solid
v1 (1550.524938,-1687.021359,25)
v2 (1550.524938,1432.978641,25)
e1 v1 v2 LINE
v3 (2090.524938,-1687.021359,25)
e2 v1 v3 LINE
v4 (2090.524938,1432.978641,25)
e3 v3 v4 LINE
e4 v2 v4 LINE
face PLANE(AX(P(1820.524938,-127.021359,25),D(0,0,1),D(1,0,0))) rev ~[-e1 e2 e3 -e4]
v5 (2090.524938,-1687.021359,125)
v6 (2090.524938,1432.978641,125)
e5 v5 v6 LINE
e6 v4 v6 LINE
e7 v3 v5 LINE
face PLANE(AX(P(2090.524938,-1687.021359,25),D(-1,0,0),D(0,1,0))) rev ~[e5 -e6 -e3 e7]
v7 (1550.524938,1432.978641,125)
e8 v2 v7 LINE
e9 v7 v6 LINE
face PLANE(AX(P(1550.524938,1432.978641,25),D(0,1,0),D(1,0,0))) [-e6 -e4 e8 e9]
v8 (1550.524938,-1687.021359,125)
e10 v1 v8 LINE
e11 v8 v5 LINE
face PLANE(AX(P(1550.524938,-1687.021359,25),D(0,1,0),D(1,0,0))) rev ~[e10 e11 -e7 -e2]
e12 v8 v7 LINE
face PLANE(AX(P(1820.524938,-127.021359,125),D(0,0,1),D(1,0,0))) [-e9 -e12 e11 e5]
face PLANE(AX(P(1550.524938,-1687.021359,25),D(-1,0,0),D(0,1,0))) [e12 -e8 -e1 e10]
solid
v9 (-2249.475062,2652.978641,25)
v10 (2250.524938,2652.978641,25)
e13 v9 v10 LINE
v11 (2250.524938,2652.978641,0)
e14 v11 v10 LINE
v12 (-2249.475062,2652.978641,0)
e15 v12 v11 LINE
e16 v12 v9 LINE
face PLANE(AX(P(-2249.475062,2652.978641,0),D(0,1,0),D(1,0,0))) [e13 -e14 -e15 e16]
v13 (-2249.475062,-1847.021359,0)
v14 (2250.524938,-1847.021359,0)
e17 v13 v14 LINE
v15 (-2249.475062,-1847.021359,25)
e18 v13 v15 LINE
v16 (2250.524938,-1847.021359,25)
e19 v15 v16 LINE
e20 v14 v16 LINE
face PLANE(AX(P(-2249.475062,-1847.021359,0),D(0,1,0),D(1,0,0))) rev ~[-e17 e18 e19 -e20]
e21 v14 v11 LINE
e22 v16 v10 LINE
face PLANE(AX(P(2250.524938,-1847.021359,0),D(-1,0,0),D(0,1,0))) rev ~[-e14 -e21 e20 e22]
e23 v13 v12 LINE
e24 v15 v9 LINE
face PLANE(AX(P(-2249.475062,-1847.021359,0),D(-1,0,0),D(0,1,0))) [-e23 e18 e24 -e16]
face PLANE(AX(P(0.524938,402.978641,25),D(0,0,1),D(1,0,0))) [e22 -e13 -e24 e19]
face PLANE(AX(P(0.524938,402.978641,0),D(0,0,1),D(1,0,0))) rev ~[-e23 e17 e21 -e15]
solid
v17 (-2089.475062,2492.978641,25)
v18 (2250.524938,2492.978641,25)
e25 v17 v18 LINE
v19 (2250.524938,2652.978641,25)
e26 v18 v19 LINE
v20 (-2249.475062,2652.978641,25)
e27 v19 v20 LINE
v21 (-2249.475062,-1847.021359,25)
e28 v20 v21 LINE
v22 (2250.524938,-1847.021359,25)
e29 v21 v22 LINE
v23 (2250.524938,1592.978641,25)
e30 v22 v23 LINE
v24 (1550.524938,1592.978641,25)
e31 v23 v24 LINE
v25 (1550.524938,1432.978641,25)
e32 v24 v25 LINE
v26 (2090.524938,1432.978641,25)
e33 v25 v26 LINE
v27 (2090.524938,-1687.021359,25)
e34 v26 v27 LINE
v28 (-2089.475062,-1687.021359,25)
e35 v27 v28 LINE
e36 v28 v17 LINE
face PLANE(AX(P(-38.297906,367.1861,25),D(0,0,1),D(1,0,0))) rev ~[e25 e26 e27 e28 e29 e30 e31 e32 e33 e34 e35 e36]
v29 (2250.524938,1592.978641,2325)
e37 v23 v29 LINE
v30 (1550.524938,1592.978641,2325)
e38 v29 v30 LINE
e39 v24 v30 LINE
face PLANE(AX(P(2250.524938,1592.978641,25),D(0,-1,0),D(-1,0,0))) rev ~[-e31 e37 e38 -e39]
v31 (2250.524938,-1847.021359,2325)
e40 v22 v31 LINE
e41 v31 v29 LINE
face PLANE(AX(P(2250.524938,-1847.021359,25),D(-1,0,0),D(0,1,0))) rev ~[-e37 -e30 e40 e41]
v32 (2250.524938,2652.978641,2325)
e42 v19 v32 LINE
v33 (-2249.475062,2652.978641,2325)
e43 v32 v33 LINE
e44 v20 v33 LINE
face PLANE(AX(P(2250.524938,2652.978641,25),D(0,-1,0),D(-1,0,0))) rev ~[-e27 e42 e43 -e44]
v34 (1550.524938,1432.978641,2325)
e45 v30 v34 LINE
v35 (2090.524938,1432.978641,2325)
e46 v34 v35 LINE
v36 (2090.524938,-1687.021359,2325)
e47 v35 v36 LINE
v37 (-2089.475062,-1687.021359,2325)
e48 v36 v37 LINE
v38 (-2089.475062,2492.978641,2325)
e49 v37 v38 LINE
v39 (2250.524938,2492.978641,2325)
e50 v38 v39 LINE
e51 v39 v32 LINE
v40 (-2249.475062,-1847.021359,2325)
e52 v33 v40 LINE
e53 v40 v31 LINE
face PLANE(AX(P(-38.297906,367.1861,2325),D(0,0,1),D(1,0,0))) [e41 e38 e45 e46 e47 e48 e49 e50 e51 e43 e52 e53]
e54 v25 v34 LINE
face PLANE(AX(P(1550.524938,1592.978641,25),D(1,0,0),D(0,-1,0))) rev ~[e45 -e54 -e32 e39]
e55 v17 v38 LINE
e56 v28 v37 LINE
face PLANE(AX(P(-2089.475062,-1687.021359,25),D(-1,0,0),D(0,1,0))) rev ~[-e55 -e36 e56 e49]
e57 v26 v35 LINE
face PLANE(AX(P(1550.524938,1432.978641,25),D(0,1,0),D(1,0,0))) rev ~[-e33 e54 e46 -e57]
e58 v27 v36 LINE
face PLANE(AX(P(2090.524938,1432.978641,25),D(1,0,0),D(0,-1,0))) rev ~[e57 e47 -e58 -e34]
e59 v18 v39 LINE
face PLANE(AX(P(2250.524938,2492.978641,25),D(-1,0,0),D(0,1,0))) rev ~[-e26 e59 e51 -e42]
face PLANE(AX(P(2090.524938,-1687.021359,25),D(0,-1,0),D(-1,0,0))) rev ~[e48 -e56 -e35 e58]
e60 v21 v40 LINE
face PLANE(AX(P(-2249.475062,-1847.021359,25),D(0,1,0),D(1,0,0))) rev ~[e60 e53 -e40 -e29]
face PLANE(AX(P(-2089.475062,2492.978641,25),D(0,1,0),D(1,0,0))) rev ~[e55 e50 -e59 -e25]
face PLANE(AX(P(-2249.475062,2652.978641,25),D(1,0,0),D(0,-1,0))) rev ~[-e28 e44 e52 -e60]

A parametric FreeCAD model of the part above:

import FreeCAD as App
import Part
import Sketcher

V = App.Vector


def add_polygon(sketch, points):
    """Adds a closed chain of lines whose ends are joined by coincident constraints."""
    first, n = sketch.GeometryCount, len(points)
    for a, b in zip(points, points[1:] + points[:1]):
        sketch.addGeometry(Part.LineSegment(App.Vector(*a, 0), App.Vector(*b, 0)), False)
    for i in range(n):
        sketch.addConstraint(Sketcher.Constraint("Coincident", first + i, 2, first + (i + 1) % n, 1))

doc = App.newDocument("Part")
body = doc.addObject("PartDesign::Body", "Body")

# Sketch on XY plane
sketch1 = body.newObject("Sketcher::SketchObject", "Sketch")
sketch1.AttachmentSupport = (doc.getObject("XY_Plane"), [""])
sketch1.MapMode = "FlatFace"
add_polygon(sketch1, [(-2249, 2653), (-2249, -1847), (2251, -1847), (2251, 2653)])  # lines 0-3
sketch1.addConstraint(Sketcher.Constraint("Vertical", 0))
sketch1.addConstraint(Sketcher.Constraint("Horizontal", 1))
sketch1.addConstraint(Sketcher.Constraint("Vertical", 2))
sketch1.addConstraint(Sketcher.Constraint("Horizontal", 3))
sketch1.addConstraint(Sketcher.Constraint("Equal", 3, 0))
sketch1.addConstraint(Sketcher.Constraint("DistanceX", 1, 1, 1, 2, 4500.0))
sketch1.addConstraint(Sketcher.Constraint("DistanceX", 0, 2, -1, 1, 2249.475062))
sketch1.addConstraint(Sketcher.Constraint("DistanceY", 0, 2, -1, 1, 1847.021359))
pad1 = body.newObject("PartDesign::Pad", "Pad")
pad1.Profile = sketch1
pad1.Length = 25
body2 = doc.addObject("PartDesign::Body", "Body001")

# Sketch on XY plane
sketch2 = body2.newObject("Sketcher::SketchObject", "Sketch001")
sketch2.AttachmentSupport = (doc.getObject("XY_Plane001"), [""])
sketch2.MapMode = "FlatFace"
sketch2.AttachmentOffset = App.Placement(V(0, 0, 25), App.Rotation())
add_polygon(sketch2, [(2251, 2493), (2251, 2653), (-2249, 2653), (-2249, -1847), (2251, -1847), (2251, 1593), (1551, 1593), (1551, 1433), (2091, 1433), (2091, -1687), (-2089, -1687), (-2089, 2493)])  # lines 0-11
sketch2.addConstraint(Sketcher.Constraint("Vertical", 0))
sketch2.addConstraint(Sketcher.Constraint("Horizontal", 1))
sketch2.addConstraint(Sketcher.Constraint("Vertical", 2))
sketch2.addConstraint(Sketcher.Constraint("Horizontal", 3))
sketch2.addConstraint(Sketcher.Constraint("Vertical", 4))
sketch2.addConstraint(Sketcher.Constraint("Horizontal", 5))
sketch2.addConstraint(Sketcher.Constraint("Vertical", 6))
sketch2.addConstraint(Sketcher.Constraint("Horizontal", 7))
sketch2.addConstraint(Sketcher.Constraint("Vertical", 8))
sketch2.addConstraint(Sketcher.Constraint("Horizontal", 9))
sketch2.addConstraint(Sketcher.Constraint("Vertical", 10))
sketch2.addConstraint(Sketcher.Constraint("Horizontal", 11))
sketch2.addConstraint(Sketcher.Constraint("Vertical", 0, 2, 3, 2))
sketch2.addConstraint(Sketcher.Constraint("Equal", 3, 2))
sketch2.addConstraint(Sketcher.Constraint("Equal", 0, 6))
sketch2.addConstraint(Sketcher.Constraint("Equal", 9, 10))
sketch2.addConstraint(Sketcher.Constraint("DistanceX", 1, 2, 1, 1, 4500.0))
sketch2.addConstraint(Sketcher.Constraint("DistanceX", 5, 2, 5, 1, 700.0))
sketch2.addConstraint(Sketcher.Constraint("DistanceX", 7, 1, 7, 2, 540.0))
sketch2.addConstraint(Sketcher.Constraint("DistanceX", 9, 2, 9, 1, 4180.0))
sketch2.addConstraint(Sketcher.Constraint("DistanceY", 0, 1, 0, 2, 160.0))
sketch2.addConstraint(Sketcher.Constraint("DistanceY", 4, 1, 4, 2, 3440.0))
sketch2.addConstraint(Sketcher.Constraint("DistanceX", -1, 1, 0, 2, 2250.524938))
sketch2.addConstraint(Sketcher.Constraint("DistanceY", -1, 1, 0, 2, 2652.978641))
pad2 = body2.newObject("PartDesign::Pad", "Pad001")
pad2.Profile = sketch2
pad2.Length = 2300
body3 = doc.addObject("PartDesign::Body", "Body002")

# Sketch on XY plane
sketch3 = body3.newObject("Sketcher::SketchObject", "Sketch002")
sketch3.AttachmentSupport = (doc.getObject("XY_Plane002"), [""])
sketch3.MapMode = "FlatFace"
sketch3.AttachmentOffset = App.Placement(V(0, 0, 25), App.Rotation())
add_polygon(sketch3, [(1551, 1433), (1551, -1687), (2091, -1687), (2091, 1433)])  # lines 0-3
sketch3.addConstraint(Sketcher.Constraint("Vertical", 0))
sketch3.addConstraint(Sketcher.Constraint("Horizontal", 1))
sketch3.addConstraint(Sketcher.Constraint("Vertical", 2))
sketch3.addConstraint(Sketcher.Constraint("Horizontal", 3))
sketch3.addConstraint(Sketcher.Constraint("DistanceX", 1, 1, 1, 2, 540.0))
sketch3.addConstraint(Sketcher.Constraint("DistanceY", 0, 2, 0, 1, 3120.0))
sketch3.addConstraint(Sketcher.Constraint("DistanceX", -1, 1, 0, 2, 1550.524938))
sketch3.addConstraint(Sketcher.Constraint("DistanceY", 0, 2, -1, 1, 1687.021359))
pad3 = body3.newObject("PartDesign::Pad", "Pad002")
pad3.Profile = sketch3
pad3.Length = 100

doc.recompute()
